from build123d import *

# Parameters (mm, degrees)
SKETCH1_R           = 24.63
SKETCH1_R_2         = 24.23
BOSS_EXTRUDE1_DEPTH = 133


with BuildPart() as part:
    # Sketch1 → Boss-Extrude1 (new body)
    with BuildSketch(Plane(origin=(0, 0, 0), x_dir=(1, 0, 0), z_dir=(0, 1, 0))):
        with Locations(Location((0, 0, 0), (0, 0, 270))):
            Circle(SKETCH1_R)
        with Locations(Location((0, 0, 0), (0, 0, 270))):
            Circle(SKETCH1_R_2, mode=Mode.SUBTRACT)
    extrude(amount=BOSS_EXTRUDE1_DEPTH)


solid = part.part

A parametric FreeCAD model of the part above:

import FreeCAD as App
import Part
import Sketcher

V = App.Vector

doc = App.newDocument("Part")
body = doc.addObject("PartDesign::Body", "Body")

sketch1 = doc.addObject("Sketcher::SketchObject", "Sketch")
body.addObject(sketch1)
sketch1.AttachmentSupport = (doc.XZ_Plane, [""])
sketch1.MapMode = "FlatFace"
sketch1.addGeometry(Part.Circle(V(0, 0, 0), V(0, 0, 1), 25), False)
sketch1.addGeometry(Part.Circle(V(0, 0, 0), V(0, 0, 1), 24), False)
sketch1.addConstraint(Sketcher.Constraint("Coincident", 0, 3, -1, 1))
sketch1.addConstraint(Sketcher.Constraint("Coincident", 1, 3, -1, 1))
sketch1.addConstraint(Sketcher.Constraint("Diameter", 0, 49.26))
sketch1.addConstraint(Sketcher.Constraint("Diameter", 1, 48.46))
pad1 = doc.addObject("PartDesign::Pad", "Pad")
body.addObject(pad1)
pad1.Profile = sketch1
pad1.Length = 133
pad1.Reversed = True

doc.recompute()
